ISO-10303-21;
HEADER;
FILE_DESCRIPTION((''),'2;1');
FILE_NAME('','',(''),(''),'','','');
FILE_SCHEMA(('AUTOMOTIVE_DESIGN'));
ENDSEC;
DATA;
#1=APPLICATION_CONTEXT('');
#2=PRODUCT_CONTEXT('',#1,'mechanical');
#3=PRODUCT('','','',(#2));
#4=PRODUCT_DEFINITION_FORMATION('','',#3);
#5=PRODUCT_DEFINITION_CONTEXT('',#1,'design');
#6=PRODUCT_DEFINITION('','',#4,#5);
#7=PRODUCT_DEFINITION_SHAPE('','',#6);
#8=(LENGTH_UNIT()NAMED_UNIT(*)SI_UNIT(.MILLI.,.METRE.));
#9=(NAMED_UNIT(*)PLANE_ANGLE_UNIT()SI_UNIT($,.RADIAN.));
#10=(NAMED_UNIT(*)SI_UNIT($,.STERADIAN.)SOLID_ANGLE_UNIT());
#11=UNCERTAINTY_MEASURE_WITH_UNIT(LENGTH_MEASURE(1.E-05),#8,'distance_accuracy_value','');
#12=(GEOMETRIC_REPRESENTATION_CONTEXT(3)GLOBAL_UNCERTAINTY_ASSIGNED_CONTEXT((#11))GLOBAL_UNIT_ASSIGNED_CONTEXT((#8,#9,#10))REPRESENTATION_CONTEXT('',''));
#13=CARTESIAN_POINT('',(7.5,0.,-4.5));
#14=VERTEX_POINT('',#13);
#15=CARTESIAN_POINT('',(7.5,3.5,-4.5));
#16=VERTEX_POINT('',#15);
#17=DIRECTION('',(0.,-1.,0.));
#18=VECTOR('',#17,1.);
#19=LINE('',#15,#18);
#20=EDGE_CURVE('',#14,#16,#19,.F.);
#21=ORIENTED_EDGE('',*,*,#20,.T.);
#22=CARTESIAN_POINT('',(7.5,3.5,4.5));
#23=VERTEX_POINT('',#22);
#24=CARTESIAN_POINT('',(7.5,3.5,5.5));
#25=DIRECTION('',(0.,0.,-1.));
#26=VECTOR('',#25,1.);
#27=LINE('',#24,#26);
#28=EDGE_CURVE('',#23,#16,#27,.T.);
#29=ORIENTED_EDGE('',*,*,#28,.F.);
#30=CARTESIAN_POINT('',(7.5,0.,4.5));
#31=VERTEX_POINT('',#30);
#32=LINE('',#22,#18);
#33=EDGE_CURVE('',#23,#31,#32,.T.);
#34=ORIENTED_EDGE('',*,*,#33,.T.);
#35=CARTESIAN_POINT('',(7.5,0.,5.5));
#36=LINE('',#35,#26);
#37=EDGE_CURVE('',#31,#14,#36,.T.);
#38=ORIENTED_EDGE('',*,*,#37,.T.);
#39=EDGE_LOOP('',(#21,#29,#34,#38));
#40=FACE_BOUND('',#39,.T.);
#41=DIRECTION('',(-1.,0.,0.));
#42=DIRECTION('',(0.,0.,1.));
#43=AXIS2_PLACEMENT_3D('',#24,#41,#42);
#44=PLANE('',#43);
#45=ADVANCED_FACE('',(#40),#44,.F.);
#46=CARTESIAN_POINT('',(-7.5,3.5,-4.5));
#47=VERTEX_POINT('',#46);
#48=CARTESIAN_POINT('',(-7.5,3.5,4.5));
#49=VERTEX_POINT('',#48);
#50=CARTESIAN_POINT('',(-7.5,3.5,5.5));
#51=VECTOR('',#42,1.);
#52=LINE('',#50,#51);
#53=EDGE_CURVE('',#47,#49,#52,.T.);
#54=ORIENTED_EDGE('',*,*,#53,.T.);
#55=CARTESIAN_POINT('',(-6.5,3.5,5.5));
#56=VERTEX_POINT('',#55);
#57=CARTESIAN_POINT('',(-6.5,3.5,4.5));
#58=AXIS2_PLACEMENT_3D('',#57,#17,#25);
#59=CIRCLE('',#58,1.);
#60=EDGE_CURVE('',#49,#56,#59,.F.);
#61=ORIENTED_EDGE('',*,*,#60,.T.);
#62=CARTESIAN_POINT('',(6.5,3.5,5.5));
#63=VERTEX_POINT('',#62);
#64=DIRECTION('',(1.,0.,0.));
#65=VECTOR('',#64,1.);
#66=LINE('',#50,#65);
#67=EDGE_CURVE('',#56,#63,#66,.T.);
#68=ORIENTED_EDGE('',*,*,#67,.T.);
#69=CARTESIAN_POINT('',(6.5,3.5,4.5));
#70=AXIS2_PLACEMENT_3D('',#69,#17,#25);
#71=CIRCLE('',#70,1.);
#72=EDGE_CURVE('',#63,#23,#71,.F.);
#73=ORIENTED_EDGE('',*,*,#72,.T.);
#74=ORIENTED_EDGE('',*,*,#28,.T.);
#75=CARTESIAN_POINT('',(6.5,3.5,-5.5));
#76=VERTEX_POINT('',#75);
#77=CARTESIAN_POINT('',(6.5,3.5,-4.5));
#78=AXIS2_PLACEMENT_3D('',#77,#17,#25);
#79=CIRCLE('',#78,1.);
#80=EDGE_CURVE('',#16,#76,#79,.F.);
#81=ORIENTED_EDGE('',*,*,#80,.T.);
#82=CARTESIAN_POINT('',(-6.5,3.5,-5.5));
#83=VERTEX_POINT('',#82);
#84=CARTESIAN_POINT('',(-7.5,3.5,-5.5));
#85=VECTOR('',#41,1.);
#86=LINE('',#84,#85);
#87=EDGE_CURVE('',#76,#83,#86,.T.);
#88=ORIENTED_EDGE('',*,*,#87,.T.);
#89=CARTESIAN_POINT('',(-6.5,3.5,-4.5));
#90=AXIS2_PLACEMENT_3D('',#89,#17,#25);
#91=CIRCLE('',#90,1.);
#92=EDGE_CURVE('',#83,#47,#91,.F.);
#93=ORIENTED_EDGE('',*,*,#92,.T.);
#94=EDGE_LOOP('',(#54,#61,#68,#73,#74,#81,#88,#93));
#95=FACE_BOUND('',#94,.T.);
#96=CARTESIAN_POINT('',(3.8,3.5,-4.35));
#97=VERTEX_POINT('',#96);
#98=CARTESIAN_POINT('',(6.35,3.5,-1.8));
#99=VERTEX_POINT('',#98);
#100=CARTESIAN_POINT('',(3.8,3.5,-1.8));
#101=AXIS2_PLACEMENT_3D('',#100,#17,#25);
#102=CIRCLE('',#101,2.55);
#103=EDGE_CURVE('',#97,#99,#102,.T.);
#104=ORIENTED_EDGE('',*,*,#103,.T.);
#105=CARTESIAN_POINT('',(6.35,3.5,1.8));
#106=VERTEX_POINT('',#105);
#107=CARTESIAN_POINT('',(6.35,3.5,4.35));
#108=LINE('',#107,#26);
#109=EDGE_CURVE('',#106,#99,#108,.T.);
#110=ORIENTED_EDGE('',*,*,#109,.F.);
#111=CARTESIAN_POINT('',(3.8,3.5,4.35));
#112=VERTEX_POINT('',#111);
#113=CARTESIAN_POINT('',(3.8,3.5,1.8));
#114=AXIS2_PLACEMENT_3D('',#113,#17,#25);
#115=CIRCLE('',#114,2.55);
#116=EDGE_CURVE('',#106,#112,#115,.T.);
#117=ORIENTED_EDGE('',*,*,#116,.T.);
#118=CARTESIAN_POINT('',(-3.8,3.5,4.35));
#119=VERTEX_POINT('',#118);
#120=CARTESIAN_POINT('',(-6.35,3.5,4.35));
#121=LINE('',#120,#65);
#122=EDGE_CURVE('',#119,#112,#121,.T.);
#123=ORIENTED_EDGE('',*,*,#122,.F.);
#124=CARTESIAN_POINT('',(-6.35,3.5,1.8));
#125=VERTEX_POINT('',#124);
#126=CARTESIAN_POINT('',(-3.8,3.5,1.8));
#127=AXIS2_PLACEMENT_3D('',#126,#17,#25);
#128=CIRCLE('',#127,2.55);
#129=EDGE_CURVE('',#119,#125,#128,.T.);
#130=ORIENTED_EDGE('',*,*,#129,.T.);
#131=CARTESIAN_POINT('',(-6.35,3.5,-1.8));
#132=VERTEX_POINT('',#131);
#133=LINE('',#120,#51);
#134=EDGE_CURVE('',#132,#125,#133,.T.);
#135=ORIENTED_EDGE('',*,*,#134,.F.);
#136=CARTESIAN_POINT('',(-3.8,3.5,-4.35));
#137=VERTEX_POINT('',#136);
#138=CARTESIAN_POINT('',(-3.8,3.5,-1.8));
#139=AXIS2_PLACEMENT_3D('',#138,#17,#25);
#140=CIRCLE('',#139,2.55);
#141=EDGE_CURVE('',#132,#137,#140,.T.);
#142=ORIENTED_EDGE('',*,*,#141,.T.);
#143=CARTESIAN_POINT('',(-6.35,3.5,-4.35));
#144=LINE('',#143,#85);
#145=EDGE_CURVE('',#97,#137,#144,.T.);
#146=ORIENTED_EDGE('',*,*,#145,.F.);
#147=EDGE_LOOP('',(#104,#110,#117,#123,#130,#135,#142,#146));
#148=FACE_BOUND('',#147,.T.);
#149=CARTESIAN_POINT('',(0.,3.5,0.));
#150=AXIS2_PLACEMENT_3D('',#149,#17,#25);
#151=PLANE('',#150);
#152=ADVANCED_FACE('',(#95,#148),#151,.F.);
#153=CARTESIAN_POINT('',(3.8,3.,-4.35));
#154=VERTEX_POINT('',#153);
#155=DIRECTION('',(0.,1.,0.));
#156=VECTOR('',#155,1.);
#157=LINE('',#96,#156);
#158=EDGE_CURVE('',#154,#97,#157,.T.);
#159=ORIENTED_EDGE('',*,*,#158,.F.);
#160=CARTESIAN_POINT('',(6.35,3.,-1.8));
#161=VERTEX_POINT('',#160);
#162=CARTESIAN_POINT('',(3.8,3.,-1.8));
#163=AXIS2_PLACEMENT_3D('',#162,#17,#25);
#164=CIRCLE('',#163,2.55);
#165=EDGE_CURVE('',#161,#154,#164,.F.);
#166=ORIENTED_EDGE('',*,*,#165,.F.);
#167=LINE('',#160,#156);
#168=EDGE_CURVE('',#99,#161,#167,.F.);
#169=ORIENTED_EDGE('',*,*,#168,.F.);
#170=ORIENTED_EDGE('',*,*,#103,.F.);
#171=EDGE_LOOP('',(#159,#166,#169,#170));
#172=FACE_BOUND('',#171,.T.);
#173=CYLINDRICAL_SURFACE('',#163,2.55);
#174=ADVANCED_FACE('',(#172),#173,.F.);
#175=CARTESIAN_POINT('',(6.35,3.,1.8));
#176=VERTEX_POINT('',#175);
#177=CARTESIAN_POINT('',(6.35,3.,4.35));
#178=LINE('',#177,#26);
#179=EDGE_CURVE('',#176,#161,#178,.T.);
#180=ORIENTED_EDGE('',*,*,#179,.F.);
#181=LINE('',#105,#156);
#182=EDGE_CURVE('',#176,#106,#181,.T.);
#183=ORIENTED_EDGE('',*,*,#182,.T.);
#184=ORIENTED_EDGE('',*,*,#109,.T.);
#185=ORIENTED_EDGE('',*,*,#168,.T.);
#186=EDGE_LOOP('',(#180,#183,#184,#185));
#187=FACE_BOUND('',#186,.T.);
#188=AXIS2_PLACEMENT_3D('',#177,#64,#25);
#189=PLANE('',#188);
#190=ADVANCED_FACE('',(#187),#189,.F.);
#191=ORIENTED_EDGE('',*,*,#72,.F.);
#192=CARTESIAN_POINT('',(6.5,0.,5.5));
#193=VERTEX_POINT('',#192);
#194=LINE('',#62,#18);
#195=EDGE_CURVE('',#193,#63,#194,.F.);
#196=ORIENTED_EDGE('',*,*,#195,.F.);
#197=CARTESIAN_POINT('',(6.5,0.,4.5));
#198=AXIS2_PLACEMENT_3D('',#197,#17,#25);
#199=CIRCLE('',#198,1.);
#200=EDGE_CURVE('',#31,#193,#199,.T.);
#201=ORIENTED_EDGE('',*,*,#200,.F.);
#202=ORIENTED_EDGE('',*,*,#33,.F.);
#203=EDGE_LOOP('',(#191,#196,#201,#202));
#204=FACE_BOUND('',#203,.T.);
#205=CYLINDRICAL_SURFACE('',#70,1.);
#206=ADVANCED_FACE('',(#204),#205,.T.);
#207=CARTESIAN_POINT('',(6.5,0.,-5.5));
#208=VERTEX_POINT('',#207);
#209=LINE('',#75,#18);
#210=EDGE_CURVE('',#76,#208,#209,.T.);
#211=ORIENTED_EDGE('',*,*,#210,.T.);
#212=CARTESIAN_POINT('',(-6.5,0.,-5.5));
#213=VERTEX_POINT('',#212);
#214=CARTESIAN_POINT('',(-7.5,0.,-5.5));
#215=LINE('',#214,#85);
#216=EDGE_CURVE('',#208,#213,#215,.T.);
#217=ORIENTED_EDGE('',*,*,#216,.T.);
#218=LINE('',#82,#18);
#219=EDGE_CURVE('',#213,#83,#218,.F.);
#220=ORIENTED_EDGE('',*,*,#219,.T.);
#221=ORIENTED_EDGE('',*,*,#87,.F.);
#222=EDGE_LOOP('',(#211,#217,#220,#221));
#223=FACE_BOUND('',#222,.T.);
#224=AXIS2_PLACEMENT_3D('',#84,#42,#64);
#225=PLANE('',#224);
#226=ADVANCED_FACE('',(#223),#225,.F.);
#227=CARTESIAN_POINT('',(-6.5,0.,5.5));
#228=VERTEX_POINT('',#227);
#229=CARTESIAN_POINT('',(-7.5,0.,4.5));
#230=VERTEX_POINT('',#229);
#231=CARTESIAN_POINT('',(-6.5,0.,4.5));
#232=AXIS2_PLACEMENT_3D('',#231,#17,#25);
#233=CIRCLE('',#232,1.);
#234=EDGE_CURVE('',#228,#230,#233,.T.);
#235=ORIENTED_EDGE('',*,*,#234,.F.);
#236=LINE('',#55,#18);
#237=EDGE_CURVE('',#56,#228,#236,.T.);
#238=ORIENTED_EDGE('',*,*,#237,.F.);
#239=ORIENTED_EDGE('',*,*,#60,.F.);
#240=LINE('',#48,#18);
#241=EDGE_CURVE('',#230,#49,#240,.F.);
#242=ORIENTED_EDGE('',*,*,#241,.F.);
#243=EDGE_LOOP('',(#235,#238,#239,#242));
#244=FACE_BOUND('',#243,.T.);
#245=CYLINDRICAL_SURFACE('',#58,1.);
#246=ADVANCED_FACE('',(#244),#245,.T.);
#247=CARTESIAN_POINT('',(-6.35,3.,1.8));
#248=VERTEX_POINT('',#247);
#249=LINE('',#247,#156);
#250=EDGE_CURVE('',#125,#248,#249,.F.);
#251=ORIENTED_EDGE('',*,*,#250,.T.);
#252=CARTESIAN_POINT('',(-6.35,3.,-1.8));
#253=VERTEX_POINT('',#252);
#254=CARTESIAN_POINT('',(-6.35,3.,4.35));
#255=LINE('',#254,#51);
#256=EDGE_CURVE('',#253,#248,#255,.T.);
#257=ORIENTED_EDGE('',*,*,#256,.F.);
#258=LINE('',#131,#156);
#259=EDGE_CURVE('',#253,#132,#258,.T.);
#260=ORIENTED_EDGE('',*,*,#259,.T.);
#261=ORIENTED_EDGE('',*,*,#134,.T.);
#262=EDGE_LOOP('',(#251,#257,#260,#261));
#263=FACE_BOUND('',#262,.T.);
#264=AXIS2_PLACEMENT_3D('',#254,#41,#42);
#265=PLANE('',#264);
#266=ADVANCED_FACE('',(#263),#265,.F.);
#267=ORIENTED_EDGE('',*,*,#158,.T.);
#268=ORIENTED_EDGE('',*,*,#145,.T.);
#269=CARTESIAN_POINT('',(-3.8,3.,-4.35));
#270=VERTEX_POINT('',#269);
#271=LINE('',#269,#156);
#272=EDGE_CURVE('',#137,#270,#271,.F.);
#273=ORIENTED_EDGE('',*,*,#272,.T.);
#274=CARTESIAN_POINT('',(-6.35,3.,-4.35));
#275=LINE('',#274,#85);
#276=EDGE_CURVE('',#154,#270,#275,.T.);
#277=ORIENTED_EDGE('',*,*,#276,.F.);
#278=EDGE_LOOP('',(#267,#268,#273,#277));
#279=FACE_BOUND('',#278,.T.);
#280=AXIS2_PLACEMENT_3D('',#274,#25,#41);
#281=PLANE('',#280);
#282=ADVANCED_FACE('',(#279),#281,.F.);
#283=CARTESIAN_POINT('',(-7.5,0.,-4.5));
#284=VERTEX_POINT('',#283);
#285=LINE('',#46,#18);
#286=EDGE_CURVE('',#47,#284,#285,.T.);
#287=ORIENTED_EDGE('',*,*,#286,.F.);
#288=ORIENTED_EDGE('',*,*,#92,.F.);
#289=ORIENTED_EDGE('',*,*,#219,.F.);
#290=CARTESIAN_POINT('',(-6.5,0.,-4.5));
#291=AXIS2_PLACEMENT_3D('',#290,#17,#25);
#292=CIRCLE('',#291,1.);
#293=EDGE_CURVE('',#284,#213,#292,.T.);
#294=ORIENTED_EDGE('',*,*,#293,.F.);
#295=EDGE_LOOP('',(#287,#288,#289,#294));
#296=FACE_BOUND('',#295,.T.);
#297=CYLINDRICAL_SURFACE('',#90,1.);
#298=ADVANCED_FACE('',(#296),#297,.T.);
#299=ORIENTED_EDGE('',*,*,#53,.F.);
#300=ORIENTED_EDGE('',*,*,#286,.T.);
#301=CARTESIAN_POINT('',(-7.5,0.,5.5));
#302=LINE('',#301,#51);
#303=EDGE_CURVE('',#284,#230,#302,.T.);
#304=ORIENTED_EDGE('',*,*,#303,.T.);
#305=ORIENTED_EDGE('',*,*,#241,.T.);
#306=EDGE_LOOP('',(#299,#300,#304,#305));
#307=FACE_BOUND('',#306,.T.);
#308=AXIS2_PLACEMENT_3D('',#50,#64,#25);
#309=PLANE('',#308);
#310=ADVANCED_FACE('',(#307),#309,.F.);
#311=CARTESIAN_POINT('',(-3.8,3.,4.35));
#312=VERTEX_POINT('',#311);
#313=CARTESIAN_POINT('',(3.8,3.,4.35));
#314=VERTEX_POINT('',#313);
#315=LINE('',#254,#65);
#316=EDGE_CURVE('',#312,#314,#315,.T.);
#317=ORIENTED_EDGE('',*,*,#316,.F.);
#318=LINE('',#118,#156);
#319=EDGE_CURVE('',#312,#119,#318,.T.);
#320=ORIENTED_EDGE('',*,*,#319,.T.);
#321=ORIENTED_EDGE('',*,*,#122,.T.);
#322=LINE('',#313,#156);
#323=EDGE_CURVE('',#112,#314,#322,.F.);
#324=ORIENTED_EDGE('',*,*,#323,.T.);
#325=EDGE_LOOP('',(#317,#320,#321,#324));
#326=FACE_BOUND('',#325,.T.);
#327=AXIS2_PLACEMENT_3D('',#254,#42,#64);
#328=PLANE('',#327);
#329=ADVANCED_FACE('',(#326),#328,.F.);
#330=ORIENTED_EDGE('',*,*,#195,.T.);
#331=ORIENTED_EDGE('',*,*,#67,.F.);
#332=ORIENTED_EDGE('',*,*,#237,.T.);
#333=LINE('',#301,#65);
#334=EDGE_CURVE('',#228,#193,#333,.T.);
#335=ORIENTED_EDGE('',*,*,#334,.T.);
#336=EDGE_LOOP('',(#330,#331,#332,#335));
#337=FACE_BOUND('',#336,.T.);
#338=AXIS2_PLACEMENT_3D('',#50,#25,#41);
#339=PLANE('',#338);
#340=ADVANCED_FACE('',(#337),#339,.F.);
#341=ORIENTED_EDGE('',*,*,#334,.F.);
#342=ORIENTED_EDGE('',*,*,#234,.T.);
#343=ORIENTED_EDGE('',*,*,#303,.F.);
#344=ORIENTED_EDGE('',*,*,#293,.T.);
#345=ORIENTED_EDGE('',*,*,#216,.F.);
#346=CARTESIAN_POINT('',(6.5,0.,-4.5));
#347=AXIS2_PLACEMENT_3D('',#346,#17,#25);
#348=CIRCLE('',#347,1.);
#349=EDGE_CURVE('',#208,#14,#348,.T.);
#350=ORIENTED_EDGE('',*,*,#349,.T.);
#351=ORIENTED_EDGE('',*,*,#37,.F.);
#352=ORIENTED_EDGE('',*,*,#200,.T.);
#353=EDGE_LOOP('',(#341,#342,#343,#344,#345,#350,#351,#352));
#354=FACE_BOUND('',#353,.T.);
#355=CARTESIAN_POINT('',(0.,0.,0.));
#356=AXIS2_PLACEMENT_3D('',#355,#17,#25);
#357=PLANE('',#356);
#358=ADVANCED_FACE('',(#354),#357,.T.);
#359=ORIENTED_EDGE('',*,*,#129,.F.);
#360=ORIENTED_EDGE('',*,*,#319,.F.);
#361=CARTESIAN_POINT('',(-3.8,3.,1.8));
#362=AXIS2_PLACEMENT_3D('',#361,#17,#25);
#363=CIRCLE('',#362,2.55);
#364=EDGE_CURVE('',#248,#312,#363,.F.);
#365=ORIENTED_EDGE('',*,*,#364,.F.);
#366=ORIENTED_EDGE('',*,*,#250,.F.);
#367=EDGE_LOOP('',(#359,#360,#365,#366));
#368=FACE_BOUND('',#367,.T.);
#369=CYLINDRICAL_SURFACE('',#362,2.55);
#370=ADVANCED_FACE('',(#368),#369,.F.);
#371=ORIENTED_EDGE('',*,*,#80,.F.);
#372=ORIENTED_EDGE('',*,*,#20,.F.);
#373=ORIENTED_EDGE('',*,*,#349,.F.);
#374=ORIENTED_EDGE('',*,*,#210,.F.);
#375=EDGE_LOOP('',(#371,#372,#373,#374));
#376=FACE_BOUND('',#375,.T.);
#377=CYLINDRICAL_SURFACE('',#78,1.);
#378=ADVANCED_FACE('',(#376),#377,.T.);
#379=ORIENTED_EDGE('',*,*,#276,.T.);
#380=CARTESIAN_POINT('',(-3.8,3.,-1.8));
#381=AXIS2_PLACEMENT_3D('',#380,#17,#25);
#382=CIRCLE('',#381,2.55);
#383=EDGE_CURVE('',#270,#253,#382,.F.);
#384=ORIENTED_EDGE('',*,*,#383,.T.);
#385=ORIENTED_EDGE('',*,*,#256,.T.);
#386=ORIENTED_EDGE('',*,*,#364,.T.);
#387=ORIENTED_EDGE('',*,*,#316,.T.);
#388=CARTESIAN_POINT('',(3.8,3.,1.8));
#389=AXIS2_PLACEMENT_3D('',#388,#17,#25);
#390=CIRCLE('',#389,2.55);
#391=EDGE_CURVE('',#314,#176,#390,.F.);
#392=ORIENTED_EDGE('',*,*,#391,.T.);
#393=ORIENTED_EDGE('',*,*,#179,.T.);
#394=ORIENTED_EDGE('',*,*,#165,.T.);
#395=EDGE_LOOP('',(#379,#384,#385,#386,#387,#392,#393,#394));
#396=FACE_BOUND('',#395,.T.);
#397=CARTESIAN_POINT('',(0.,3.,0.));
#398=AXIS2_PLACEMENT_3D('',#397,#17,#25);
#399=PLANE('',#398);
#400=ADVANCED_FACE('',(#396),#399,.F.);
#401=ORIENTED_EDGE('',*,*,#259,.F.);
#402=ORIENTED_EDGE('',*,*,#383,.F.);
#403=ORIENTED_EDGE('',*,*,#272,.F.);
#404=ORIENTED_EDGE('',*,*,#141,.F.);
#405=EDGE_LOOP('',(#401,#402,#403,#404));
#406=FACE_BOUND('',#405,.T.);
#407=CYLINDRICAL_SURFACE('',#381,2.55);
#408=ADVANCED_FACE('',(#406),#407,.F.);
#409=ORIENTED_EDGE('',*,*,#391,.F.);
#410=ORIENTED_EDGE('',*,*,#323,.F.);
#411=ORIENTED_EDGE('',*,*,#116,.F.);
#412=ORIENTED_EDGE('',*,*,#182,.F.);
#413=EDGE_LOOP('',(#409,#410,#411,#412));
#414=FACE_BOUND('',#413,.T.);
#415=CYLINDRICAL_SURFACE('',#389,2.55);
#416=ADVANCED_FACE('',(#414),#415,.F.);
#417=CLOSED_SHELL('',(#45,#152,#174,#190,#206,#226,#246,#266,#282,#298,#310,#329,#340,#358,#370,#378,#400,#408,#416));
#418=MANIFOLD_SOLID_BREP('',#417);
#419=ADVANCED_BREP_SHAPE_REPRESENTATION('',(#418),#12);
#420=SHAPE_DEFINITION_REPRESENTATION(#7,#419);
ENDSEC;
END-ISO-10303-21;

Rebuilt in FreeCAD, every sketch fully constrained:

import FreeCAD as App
import Part
import Sketcher
from FreeCAD import Vector
Q = App.Units.Quantity


def edges_at(feature, points):
    """Names of the edges that pass closest to the given points."""
    edges = feature.Shape.Edges
    near = lambda p: min(range(len(edges)), key=lambda i: edges[i].distToShape(Part.Vertex(*p))[0])
    return sorted({f"Edge{near(p) + 1}" for p in points})

doc = App.newDocument("Part")
body = doc.addObject("PartDesign::Body", "Body")

# Sketch on XZ plane
sketch1 = body.newObject("Sketcher::SketchObject", "Sketch")
sketch1.AttachmentSupport = (doc.getObject("XZ_Plane"), [""])
sketch1.MapMode = "FlatFace"
sketch1.addGeometry(Part.LineSegment(Vector(-8, -6, 0), Vector(-8, 6, 0)), False)
sketch1.addGeometry(Part.LineSegment(Vector(-8, 6, 0), Vector(8, 6, 0)), False)
sketch1.addGeometry(Part.LineSegment(Vector(8, 6, 0), Vector(8, -6, 0)), False)
sketch1.addGeometry(Part.LineSegment(Vector(8, -6, 0), Vector(-8, -6, 0)), False)
sketch1.addConstraint(Sketcher.Constraint("Coincident", 0, 2, 1, 1))
sketch1.addConstraint(Sketcher.Constraint("Coincident", 1, 2, 2, 1))
sketch1.addConstraint(Sketcher.Constraint("Coincident", 2, 2, 3, 1))
sketch1.addConstraint(Sketcher.Constraint("Coincident", 3, 2, 0, 1))
sketch1.addConstraint(Sketcher.Constraint("Vertical", 0))
sketch1.addConstraint(Sketcher.Constraint("Horizontal", 1))
sketch1.addConstraint(Sketcher.Constraint("Vertical", 2))
sketch1.addConstraint(Sketcher.Constraint("Horizontal", 3))
sketch1.addConstraint(Sketcher.Constraint("Symmetric", 0, 2, 2, 2, -1, 1))
sketch1.addConstraint(Sketcher.Constraint("DistanceX", 1, 1, 1, 2, Q("15 mm")))
sketch1.addConstraint(Sketcher.Constraint("DistanceY", 0, 1, 0, 2, Q("11 mm")))
pad1 = body.newObject("PartDesign::Pad", "Pad")
pad1.Profile = sketch1
pad1.Length = 3.5
pad1.Reversed = True
doc.recompute()

fillet = body.newObject("PartDesign::Fillet", "Fillet")
fillet.Base = (pad1, edges_at(pad1, [
    (7.5, 1.75, 5.5),
    (-7.5, 1.75, 5.5),
    (-7.5, 1.75, -5.5),
    (7.5, 1.75, -5.5),
]))
fillet.Radius = 1

# Sketch on XZ plane
sketch2 = body.newObject("Sketcher::SketchObject", "Sketch001")
sketch2.AttachmentSupport = (doc.getObject("XZ_Plane"), [""])
sketch2.MapMode = "FlatFace"
sketch2.AttachmentOffset = App.Placement(Vector(0, 0, -3.5), App.Rotation())
sketch2.addGeometry(Part.LineSegment(Vector(-6, -4, 0), Vector(-6, 4, 0)), False)
sketch2.addGeometry(Part.LineSegment(Vector(-6, 4, 0), Vector(6, 4, 0)), False)
sketch2.addGeometry(Part.LineSegment(Vector(6, 4, 0), Vector(6, -4, 0)), False)
sketch2.addGeometry(Part.LineSegment(Vector(6, -4, 0), Vector(-6, -4, 0)), False)
sketch2.addConstraint(Sketcher.Constraint("Coincident", 0, 2, 1, 1))
sketch2.addConstraint(Sketcher.Constraint("Coincident", 1, 2, 2, 1))
sketch2.addConstraint(Sketcher.Constraint("Coincident", 2, 2, 3, 1))
sketch2.addConstraint(Sketcher.Constraint("Coincident", 3, 2, 0, 1))
sketch2.addConstraint(Sketcher.Constraint("Vertical", 0))
sketch2.addConstraint(Sketcher.Constraint("Horizontal", 1))
sketch2.addConstraint(Sketcher.Constraint("Vertical", 2))
sketch2.addConstraint(Sketcher.Constraint("Horizontal", 3))
sketch2.addConstraint(Sketcher.Constraint("Symmetric", 0, 2, 2, 2, -1, 1))
sketch2.addConstraint(Sketcher.Constraint("DistanceX", 1, 1, 1, 2, Q("12.7 mm")))
sketch2.addConstraint(Sketcher.Constraint("DistanceY", 0, 1, 0, 2, Q("8.7 mm")))
pocket1 = body.newObject("PartDesign::Pocket", "Pocket")
pocket1.Profile = sketch2
pocket1.Length = 0.5
pocket1.Reversed = True
doc.recompute()

fillet2 = body.newObject("PartDesign::Fillet", "Fillet001")
fillet2.Base = (pocket1, edges_at(pocket1, [
    (6.35, 3.25, -4.35),
    (6.35, 3.25, 4.35),
    (-6.35, 3.25, 4.35),
    (-6.35, 3.25, -4.35),
]))
fillet2.Radius = 2.55

doc.recompute()
